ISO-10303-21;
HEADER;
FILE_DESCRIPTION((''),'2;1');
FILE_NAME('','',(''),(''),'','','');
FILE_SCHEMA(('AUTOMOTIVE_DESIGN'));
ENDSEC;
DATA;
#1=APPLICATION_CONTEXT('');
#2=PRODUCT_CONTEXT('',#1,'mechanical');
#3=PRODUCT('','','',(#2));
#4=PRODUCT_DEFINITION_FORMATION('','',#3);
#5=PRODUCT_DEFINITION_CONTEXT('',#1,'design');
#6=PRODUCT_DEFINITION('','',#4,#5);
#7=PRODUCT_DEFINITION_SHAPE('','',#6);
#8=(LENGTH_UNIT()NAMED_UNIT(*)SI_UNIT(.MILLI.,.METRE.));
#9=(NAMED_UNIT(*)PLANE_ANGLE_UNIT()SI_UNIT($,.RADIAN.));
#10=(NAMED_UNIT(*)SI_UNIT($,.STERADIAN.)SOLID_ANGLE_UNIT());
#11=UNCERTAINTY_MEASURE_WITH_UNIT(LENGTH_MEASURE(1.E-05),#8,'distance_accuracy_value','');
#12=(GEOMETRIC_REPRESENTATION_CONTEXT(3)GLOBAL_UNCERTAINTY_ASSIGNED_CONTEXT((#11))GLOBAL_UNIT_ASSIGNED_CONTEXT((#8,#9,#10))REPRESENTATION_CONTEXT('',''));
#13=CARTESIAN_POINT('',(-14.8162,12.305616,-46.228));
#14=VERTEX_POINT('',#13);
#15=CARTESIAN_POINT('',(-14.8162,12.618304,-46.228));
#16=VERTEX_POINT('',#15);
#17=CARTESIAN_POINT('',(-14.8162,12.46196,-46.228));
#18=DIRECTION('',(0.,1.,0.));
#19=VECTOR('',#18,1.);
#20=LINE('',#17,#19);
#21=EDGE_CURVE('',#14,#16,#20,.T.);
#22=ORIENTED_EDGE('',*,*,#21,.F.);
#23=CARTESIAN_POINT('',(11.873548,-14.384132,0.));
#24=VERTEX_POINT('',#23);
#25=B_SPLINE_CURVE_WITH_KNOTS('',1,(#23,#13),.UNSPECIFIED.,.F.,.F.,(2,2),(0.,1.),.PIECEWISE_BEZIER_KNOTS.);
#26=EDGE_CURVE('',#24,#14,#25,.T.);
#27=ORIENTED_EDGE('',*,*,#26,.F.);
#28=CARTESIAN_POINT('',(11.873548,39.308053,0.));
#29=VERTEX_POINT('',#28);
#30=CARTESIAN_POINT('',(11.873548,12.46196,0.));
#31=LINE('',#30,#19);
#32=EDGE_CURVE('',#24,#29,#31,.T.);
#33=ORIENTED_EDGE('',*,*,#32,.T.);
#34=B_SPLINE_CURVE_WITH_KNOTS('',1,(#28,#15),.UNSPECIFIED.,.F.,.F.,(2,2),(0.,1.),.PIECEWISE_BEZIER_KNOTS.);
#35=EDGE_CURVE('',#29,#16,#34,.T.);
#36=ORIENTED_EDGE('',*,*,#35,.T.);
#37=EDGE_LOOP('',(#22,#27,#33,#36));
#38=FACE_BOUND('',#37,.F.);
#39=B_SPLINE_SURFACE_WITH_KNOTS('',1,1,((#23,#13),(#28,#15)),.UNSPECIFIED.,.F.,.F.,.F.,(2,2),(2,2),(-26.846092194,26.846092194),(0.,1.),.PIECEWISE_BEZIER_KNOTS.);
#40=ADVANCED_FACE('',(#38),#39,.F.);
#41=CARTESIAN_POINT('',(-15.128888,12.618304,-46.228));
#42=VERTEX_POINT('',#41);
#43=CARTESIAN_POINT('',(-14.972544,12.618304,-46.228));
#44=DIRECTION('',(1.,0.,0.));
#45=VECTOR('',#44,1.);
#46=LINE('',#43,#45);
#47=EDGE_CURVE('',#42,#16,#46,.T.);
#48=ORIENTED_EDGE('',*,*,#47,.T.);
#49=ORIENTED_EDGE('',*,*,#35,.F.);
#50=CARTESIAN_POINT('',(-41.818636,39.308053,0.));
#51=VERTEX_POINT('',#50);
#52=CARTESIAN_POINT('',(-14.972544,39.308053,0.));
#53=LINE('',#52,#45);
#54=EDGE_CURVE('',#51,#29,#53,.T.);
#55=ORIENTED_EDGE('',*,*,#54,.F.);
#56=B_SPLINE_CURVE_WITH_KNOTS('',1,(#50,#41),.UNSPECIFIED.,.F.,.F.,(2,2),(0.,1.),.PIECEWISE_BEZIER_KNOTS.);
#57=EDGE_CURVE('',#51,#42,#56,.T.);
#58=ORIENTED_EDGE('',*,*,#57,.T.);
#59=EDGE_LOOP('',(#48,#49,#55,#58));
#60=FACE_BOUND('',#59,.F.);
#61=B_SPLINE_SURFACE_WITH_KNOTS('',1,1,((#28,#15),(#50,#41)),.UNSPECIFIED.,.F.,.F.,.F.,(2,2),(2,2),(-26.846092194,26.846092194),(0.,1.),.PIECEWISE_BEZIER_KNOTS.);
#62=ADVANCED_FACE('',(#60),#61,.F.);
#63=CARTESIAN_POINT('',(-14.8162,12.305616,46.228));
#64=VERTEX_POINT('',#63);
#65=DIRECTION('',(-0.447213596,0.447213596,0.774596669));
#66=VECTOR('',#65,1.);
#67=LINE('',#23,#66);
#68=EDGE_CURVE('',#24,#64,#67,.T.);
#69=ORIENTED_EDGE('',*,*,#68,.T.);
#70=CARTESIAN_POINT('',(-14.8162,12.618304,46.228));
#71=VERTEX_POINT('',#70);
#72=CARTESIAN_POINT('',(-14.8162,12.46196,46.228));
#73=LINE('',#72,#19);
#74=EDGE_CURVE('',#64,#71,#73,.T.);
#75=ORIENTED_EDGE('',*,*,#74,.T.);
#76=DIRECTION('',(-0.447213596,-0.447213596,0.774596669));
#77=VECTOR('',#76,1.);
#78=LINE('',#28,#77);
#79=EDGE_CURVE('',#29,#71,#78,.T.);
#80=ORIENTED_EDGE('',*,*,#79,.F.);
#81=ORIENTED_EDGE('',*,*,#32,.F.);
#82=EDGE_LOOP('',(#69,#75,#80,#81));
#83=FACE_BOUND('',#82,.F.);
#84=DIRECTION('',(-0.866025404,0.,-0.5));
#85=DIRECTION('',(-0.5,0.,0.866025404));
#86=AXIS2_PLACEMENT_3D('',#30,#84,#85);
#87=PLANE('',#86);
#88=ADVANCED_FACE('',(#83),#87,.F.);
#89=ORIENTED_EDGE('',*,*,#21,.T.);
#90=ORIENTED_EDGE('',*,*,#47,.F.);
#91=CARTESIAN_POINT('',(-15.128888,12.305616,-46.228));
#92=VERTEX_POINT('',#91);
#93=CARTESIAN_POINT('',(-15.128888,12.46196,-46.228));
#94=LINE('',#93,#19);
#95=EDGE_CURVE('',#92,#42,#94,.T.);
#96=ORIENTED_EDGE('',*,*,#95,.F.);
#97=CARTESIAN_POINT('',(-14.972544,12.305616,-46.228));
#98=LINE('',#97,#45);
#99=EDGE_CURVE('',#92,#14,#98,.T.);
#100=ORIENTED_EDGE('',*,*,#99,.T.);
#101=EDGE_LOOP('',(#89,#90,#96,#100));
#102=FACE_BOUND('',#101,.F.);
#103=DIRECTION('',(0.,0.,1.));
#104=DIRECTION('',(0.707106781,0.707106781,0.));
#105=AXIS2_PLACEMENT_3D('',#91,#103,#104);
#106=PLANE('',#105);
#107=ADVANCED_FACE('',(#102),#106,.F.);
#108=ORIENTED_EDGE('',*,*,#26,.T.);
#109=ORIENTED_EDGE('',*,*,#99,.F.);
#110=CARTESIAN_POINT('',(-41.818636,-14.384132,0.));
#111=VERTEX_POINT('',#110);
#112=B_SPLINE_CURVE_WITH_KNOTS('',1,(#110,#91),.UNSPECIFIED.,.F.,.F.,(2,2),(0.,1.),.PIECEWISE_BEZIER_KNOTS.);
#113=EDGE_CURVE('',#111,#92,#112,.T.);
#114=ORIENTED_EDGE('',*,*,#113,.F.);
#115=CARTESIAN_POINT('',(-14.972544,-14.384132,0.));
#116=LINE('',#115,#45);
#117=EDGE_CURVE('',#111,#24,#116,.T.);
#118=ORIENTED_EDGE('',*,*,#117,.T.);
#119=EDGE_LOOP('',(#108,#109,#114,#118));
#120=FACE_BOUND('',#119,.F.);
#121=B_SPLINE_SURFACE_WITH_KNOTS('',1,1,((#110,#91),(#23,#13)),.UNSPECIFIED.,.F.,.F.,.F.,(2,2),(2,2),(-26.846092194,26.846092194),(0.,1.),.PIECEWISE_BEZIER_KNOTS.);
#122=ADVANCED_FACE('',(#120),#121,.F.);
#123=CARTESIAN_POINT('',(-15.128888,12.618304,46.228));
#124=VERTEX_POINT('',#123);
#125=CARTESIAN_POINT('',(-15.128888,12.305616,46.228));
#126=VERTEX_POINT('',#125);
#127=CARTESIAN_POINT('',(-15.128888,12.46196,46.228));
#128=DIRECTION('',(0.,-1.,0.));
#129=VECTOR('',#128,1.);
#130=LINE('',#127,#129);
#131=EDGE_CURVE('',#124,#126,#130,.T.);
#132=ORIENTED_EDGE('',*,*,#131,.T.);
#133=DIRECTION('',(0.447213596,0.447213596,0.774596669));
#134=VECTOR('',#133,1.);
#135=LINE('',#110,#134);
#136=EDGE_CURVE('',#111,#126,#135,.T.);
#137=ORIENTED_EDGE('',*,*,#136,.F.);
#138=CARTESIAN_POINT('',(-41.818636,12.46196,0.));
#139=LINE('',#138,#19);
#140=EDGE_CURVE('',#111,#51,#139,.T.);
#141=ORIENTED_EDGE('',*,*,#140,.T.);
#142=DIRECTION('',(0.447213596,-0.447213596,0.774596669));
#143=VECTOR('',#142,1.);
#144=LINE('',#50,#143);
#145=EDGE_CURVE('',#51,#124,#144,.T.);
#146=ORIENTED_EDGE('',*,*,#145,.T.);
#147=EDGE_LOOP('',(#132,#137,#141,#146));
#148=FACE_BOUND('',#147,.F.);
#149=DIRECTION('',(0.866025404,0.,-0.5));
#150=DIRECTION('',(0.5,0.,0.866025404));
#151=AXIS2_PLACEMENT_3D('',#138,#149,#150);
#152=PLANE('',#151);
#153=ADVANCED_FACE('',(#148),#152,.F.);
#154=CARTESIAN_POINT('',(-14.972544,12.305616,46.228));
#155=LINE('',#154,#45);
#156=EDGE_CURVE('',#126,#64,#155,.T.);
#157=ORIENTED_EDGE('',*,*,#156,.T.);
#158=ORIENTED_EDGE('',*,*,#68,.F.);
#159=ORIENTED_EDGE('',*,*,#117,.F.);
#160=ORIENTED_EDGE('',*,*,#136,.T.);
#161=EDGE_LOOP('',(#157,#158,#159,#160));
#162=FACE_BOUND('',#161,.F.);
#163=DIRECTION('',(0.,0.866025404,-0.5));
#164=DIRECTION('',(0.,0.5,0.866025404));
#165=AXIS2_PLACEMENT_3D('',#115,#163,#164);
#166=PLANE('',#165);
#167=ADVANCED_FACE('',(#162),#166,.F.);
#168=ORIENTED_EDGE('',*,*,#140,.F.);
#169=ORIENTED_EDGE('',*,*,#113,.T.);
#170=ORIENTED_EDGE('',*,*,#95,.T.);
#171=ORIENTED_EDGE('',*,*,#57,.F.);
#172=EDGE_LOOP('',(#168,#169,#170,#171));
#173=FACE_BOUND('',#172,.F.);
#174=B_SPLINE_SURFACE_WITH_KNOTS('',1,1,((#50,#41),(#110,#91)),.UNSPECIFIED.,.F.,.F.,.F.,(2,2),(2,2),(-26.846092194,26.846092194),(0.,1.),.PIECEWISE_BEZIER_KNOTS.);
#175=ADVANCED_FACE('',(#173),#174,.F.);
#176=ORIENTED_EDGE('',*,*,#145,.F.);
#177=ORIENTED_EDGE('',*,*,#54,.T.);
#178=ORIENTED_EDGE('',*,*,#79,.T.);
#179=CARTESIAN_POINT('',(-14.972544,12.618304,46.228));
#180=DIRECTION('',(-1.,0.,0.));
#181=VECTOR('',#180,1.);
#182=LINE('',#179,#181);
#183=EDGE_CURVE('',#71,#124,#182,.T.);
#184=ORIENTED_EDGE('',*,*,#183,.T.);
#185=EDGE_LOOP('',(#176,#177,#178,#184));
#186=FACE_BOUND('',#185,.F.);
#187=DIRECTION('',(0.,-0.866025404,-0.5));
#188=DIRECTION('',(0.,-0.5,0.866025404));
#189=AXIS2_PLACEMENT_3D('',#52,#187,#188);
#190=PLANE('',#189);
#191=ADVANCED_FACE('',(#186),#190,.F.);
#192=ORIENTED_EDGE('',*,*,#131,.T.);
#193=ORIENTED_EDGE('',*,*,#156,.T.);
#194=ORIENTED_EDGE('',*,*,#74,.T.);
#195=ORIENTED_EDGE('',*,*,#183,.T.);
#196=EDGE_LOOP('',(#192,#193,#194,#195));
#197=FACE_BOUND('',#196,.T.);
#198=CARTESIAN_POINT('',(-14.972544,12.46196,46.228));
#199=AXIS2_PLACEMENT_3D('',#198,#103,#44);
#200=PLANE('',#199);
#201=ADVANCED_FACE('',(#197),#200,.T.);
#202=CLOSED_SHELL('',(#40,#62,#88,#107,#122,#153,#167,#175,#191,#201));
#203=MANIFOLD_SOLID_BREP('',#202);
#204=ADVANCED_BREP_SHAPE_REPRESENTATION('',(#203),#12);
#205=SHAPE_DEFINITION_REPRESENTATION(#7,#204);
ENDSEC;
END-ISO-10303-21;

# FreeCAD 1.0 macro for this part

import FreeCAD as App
import Part
import Sketcher
Q = App.Units.Quantity

doc = App.newDocument("Part")
body = doc.addObject("PartDesign::Body", "Body")

sketch1 = body.newObject("Sketcher::SketchObject", "Sketch")
sketch1.AttachmentSupport = (doc.getObject("XY_Plane"), [""])
sketch1.MapMode = "FlatFace"
sketch1.addGeometry([
    Part.LineSegment(App.Vector(-42, 39, 0), App.Vector(-42, -14, 0)),
    Part.LineSegment(App.Vector(-42, -14, 0), App.Vector(12, -14, 0)),
    Part.LineSegment(App.Vector(12, -14, 0), App.Vector(12, 39, 0)),
    Part.LineSegment(App.Vector(12, 39, 0), App.Vector(-42, 39, 0)),
], False)
sketch1.addConstraint([
    Sketcher.Constraint("Coincident", 0, 2, 1, 1),
    Sketcher.Constraint("Coincident", 1, 2, 2, 1),
    Sketcher.Constraint("Coincident", 2, 2, 3, 1),
    Sketcher.Constraint("Coincident", 3, 2, 0, 1),
    Sketcher.Constraint("Vertical", 0),
    Sketcher.Constraint("Horizontal", 1),
    Sketcher.Constraint("Vertical", 2),
    Sketcher.Constraint("Horizontal", 3),
    Sketcher.Constraint("Equal", 3, 0),
    Sketcher.Constraint("DistanceX", 1, 1, 1, 2, Q("53.692184 mm")),
    Sketcher.Constraint("DistanceY", 0, 2, -1, 1, Q("14.384132 mm")),
    Sketcher.Constraint("DistanceX", 0, 2, -1, 1, Q("41.818636 mm")),
])
pad1 = body.newObject("PartDesign::Pad", "Pad")
pad1.Profile = sketch1
pad1.Length = Q("1.82 in")
pad1.TaperAngle = -30
pad2 = body.newObject("PartDesign::Pad", "Pad001")
pad2.Profile = sketch1
pad2.Length = Q("1.82 in")
pad2.Reversed = True
pad2.TaperAngle = -30

doc.recompute()
